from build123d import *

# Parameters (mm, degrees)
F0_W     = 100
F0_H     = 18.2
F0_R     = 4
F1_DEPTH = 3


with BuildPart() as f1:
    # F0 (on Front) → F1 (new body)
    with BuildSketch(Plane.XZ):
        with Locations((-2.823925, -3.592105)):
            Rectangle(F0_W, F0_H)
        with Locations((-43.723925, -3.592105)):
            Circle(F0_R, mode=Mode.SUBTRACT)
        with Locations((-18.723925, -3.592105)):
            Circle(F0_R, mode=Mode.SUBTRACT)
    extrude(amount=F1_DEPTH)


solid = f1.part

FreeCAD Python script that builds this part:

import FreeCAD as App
import Part
import Sketcher

V = App.Vector
Q = App.Units.Quantity


def add_polygon(sketch, points):
    """Adds a closed chain of lines whose ends are joined by coincident constraints."""
    first, n = sketch.GeometryCount, len(points)
    for a, b in zip(points, points[1:] + points[:1]):
        sketch.addGeometry(Part.LineSegment(App.Vector(*a, 0), App.Vector(*b, 0)), False)
    for i in range(n):
        sketch.addConstraint(Sketcher.Constraint("Coincident", first + i, 2, first + (i + 1) % n, 1))

doc = App.newDocument("Part")
params = doc.addObject("Spreadsheet::Sheet", "Params")
for row, (alias, value) in enumerate([
    ("sketch1_diameter", "8 mm"),
    ("sketch1_width", "100 mm"),
    ("sketch1_height", "18.2 mm"),
    ("pad1_length", "3 mm"),
], start=1):
    params.set(f"A{row}", alias)
    params.set(f"B{row}", "=" + value)
    params.setAlias(f"B{row}", alias)

body = doc.addObject("PartDesign::Body", "Body")

# Sketch on XZ plane
sketch1 = body.newObject("Sketcher::SketchObject", "Sketch")
sketch1.AttachmentSupport = (doc.getObject("XZ_Plane"), [""])
sketch1.MapMode = "FlatFace"
add_polygon(sketch1, [(-52.823925, 5.507895), (-52.823925, -12.692105), (47.176075, -12.692105), (47.176075, 5.507895)])  # lines 0-3
sketch1.addGeometry(Part.Circle(V(-43.723925, -3.592105, 0), V(0, 0, 1), 4), False)  # 4
sketch1.addGeometry(Part.Circle(V(-18.723925, -3.592105, 0), V(0, 0, 1), 4), False)  # 5
sketch1.addConstraint(Sketcher.Constraint("Vertical", 0))
sketch1.addConstraint(Sketcher.Constraint("Horizontal", 1))
sketch1.addConstraint(Sketcher.Constraint("Vertical", 2))
sketch1.addConstraint(Sketcher.Constraint("Horizontal", 3))
sketch1.addConstraint(Sketcher.Constraint("Equal", 4, 5))
sketch1.addConstraint(Sketcher.Constraint("Horizontal", 4, 3, 5, 3))
sketch1.addConstraint(Sketcher.Constraint("Diameter", 4, Q("8 mm")))
sketch1.addConstraint(Sketcher.Constraint("DistanceX", 1, 1, 1, 2, Q("100 mm")))
sketch1.addConstraint(Sketcher.Constraint("DistanceY", 0, 2, 0, 1, Q("18.2 mm")))
sketch1.addConstraint(Sketcher.Constraint("DistanceX", 4, 3, 5, 3, Q("25 mm")))
sketch1.addConstraint(Sketcher.Constraint("DistanceX", 0, 2, 4, 3, Q("9.1 mm")))
sketch1.addConstraint(Sketcher.Constraint("DistanceY", 0, 2, 4, 3, Q("9.1 mm")))
sketch1.addConstraint(Sketcher.Constraint("DistanceX", 4, 3, -1, 1, Q("43.723925 mm")))
sketch1.addConstraint(Sketcher.Constraint("DistanceY", 4, 3, -1, 1, Q("3.592105 mm")))
sketch1.setExpression("Constraints[10]", "Params.sketch1_diameter")
sketch1.setExpression("Constraints[11]", "Params.sketch1_width")
sketch1.setExpression("Constraints[12]", "Params.sketch1_height")
pad1 = body.newObject("PartDesign::Pad", "Pad")
pad1.Profile = sketch1
pad1.setExpression("Length", "Params.pad1_length")

doc.recompute()
